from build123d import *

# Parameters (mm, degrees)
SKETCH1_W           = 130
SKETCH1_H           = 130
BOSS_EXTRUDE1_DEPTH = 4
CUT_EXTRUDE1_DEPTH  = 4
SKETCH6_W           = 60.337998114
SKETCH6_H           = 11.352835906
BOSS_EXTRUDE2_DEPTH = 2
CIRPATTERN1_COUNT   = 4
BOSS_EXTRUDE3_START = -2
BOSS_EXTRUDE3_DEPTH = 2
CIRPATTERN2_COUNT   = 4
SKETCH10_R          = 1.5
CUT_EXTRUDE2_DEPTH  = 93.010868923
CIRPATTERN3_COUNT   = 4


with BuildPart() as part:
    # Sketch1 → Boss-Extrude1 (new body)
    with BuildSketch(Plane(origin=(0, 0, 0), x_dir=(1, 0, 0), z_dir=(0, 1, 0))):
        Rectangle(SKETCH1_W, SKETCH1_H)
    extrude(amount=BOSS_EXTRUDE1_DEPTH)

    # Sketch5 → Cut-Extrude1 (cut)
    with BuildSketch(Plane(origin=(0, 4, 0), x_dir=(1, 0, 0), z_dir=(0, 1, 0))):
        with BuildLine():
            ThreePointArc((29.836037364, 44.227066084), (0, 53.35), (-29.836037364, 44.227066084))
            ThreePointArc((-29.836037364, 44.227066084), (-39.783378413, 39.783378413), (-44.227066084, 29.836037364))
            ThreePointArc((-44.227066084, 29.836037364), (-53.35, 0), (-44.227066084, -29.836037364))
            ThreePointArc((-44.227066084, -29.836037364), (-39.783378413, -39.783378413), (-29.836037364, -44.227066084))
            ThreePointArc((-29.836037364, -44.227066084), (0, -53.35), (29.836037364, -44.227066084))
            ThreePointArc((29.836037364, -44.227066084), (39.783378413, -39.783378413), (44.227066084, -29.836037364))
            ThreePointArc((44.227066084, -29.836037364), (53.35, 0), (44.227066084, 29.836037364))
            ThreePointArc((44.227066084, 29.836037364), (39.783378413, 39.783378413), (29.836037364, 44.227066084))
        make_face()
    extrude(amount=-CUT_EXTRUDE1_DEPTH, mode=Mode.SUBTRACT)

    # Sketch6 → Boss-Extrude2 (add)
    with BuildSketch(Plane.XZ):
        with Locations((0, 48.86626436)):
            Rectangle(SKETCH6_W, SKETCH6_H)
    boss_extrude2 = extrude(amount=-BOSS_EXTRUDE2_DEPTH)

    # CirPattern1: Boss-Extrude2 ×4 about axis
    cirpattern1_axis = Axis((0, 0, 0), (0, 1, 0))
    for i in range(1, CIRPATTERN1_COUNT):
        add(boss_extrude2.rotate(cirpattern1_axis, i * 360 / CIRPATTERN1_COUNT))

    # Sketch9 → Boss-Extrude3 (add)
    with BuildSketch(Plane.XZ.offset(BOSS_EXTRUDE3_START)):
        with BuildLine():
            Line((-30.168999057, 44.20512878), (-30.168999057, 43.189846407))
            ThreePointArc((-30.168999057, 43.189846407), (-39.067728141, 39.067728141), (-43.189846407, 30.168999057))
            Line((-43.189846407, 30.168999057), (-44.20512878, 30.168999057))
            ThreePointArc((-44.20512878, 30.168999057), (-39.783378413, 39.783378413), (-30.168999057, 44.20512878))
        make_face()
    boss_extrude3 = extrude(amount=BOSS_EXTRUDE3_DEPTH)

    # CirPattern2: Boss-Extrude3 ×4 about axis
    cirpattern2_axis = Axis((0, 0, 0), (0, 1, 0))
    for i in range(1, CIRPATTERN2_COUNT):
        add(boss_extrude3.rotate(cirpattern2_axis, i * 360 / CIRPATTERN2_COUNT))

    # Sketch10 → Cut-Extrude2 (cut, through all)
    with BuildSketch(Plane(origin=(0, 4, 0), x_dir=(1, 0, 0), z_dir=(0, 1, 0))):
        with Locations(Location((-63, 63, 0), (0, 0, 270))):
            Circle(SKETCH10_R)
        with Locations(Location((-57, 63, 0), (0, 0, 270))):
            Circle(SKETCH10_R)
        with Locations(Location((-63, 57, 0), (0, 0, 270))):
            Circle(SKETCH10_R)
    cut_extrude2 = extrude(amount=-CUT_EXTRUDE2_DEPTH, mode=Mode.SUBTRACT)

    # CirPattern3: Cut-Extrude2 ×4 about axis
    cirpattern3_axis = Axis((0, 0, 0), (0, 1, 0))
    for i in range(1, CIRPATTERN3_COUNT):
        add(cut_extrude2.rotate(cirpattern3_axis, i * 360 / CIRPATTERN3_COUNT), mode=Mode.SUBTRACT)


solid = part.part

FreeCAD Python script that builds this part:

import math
import FreeCAD as App
import Part
import Sketcher
from FreeCAD import Vector
Q = App.Units.Quantity

doc = App.newDocument("Part")
params = doc.addObject("Spreadsheet::Sheet", "Params")
for row, (alias, value) in enumerate([
    ("sketch1_width", "130 mm"),
    ("pad1_length", "4 mm"),
    ("sketch2_radius", "53.35 mm"),
    ("sketch2_radius2", "15.25 mm"),
    ("pocket1_length", "4 mm"),
    ("pad2_length", "2 mm"),
    ("sketch4_radius", "15.25 mm"),
    ("pad3_length", "2 mm"),
    ("sketch5_diameter", "3 mm"),
], start=1):
    params.set(f"A{row}", alias)
    params.set(f"B{row}", "=" + value)
    params.setAlias(f"B{row}", alias)

body = doc.addObject("PartDesign::Body", "Body")

sketch1 = body.newObject("Sketcher::SketchObject", "Sketch")
sketch1.AttachmentSupport = (doc.getObject("XZ_Plane"), [""])
sketch1.MapMode = "FlatFace"
sketch1.addGeometry([
    Part.LineSegment(Vector(-65, -65, 0), Vector(-65, 65, 0)),
    Part.LineSegment(Vector(-65, 65, 0), Vector(65, 65, 0)),
    Part.LineSegment(Vector(65, 65, 0), Vector(65, -65, 0)),
    Part.LineSegment(Vector(65, -65, 0), Vector(-65, -65, 0)),
], False)
sketch1.addConstraint([
    Sketcher.Constraint("Coincident", 0, 2, 1, 1),
    Sketcher.Constraint("Coincident", 1, 2, 2, 1),
    Sketcher.Constraint("Coincident", 2, 2, 3, 1),
    Sketcher.Constraint("Coincident", 3, 2, 0, 1),
    Sketcher.Constraint("Vertical", 0),
    Sketcher.Constraint("Horizontal", 1),
    Sketcher.Constraint("Vertical", 2),
    Sketcher.Constraint("Horizontal", 3),
    Sketcher.Constraint("Symmetric", 0, 2, 2, 2, -1, 1),
    Sketcher.Constraint("Equal", 3, 0),
    Sketcher.Constraint("DistanceX", 1, 1, 1, 2, Q("130 mm")),
])
sketch1.setExpression("Constraints[10]", "Params.sketch1_width")
pad1 = body.newObject("PartDesign::Pad", "Pad")
pad1.Profile = sketch1
pad1.setExpression("Length", "Params.pad1_length")
pad1.Reversed = True

sketch2 = body.newObject("Sketcher::SketchObject", "Sketch001")
sketch2.AttachmentSupport = (doc.getObject("XZ_Plane"), [""])
sketch2.MapMode = "FlatFace"
sketch2.AttachmentOffset = App.Placement(Vector(0, 0, -4), App.Rotation())
sketch2.addGeometry([
    Part.ArcOfCircle(Part.Circle(Vector(0, 0, 0), Vector(0, 0, 1), 53), math.radians(-124), math.radians(-56)),
    Part.ArcOfCircle(Part.Circle(Vector(-29, -29, 0), Vector(0, 0, 1), 15), math.radians(-177), math.radians(-93)),
    Part.ArcOfCircle(Part.Circle(Vector(0, 0, 0), Vector(0, 0, 1), 53), math.radians(146), math.radians(214)),
    Part.ArcOfCircle(Part.Circle(Vector(-29, 29, 0), Vector(0, 0, 1), 15), math.radians(93), math.radians(177)),
    Part.ArcOfCircle(Part.Circle(Vector(0, 0, 0), Vector(0, 0, 1), 53), math.radians(56), math.radians(124)),
    Part.ArcOfCircle(Part.Circle(Vector(29, 29, 0), Vector(0, 0, 1), 15), math.radians(3), math.radians(87)),
    Part.ArcOfCircle(Part.Circle(Vector(0, 0, 0), Vector(0, 0, 1), 53), math.radians(-34), math.radians(34)),
    Part.ArcOfCircle(Part.Circle(Vector(29, -29, 0), Vector(0, 0, 1), 15), math.radians(-87), math.radians(-3)),
], False)
sketch2.addConstraint([
    Sketcher.Constraint("Coincident", 0, 1, 1, 2),
    Sketcher.Constraint("Coincident", 1, 1, 2, 2),
    Sketcher.Constraint("Coincident", 2, 1, 3, 2),
    Sketcher.Constraint("Coincident", 3, 1, 4, 2),
    Sketcher.Constraint("Coincident", 4, 1, 5, 2),
    Sketcher.Constraint("Coincident", 5, 1, 6, 2),
    Sketcher.Constraint("Coincident", 6, 1, 7, 2),
    Sketcher.Constraint("Coincident", 7, 1, 0, 2),
    Sketcher.Constraint("Coincident", 0, 3, -1, 1),
    Sketcher.Constraint("Coincident", 2, 3, -1, 1),
    Sketcher.Constraint("Coincident", 4, 3, -1, 1),
    Sketcher.Constraint("Coincident", 6, 3, -1, 1),
    Sketcher.Constraint("Equal", 0, 2),
    Sketcher.Constraint("Equal", 1, 3),
    Sketcher.Constraint("Equal", 2, 4),
    Sketcher.Constraint("Equal", 3, 5),
    Sketcher.Constraint("Equal", 4, 6),
    Sketcher.Constraint("Equal", 5, 7),
    Sketcher.Constraint("Symmetric", 1, 3, 5, 3, -1, 1),
    Sketcher.Constraint("Symmetric", 3, 3, 7, 3, -1, 1),
    Sketcher.Constraint("Symmetric", 3, 3, 5, 3, -2),
    Sketcher.Constraint("Radius", 0, Q("53.35 mm")),
    Sketcher.Constraint("Radius", 1, Q("15.25 mm")),
    Sketcher.Constraint("DistanceX", 1, 3, -1, 1, Q("29 mm")),
    Sketcher.Constraint("DistanceY", 1, 3, -1, 1, Q("29 mm")),
])
sketch2.setExpression("Constraints[21]", "Params.sketch2_radius")
sketch2.setExpression("Constraints[22]", "Params.sketch2_radius2")
pocket1 = body.newObject("PartDesign::Pocket", "Pocket")
pocket1.Profile = sketch2
pocket1.setExpression("Length", "Params.pocket1_length")
pocket1.Reversed = True

sketch3 = body.newObject("Sketcher::SketchObject", "Sketch002")
sketch3.AttachmentSupport = (doc.getObject("XZ_Plane"), [""])
sketch3.MapMode = "FlatFace"
sketch3.addGeometry([
    Part.LineSegment(Vector(-30, 55, 0), Vector(-30, 43, 0)),
    Part.LineSegment(Vector(-30, 43, 0), Vector(30, 43, 0)),
    Part.LineSegment(Vector(30, 43, 0), Vector(30, 55, 0)),
    Part.LineSegment(Vector(30, 55, 0), Vector(-30, 55, 0)),
], False)
sketch3.addConstraint([
    Sketcher.Constraint("Coincident", 0, 2, 1, 1),
    Sketcher.Constraint("Coincident", 1, 2, 2, 1),
    Sketcher.Constraint("Coincident", 2, 2, 3, 1),
    Sketcher.Constraint("Coincident", 3, 2, 0, 1),
    Sketcher.Constraint("Vertical", 0),
    Sketcher.Constraint("Horizontal", 1),
    Sketcher.Constraint("Vertical", 2),
    Sketcher.Constraint("Horizontal", 3),
    Sketcher.Constraint("DistanceX", 1, 1, 1, 2, Q("60.337998 mm")),
    Sketcher.Constraint("DistanceX", 0, 2, -1, 1, Q("30.168999 mm")),
    Sketcher.Constraint("DistanceY", 0, 2, 0, 1, Q("11.352836 mm")),
    Sketcher.Constraint("DistanceY", -1, 1, 0, 2, Q("43.189846 mm")),
])
pad2 = body.newObject("PartDesign::Pad", "Pad001")
pad2.Profile = sketch3
pad2.setExpression("Length", "Params.pad2_length")
pad2.Reversed = True
doc.recompute()

polarpattern = body.newObject("PartDesign::PolarPattern", "PolarPattern")
polarpattern.Originals = [pad2]
polarpattern.Axis = (doc.getObject("Y_Axis"), [""])
polarpattern.Angle = 360
polarpattern.Occurrences = 4
body.Tip = polarpattern

sketch4 = body.newObject("Sketcher::SketchObject", "Sketch003")
sketch4.AttachmentSupport = (doc.getObject("XZ_Plane"), [""])
sketch4.MapMode = "FlatFace"
sketch4.AttachmentOffset = App.Placement(Vector(0, 0, -2), App.Rotation())
sketch4.addGeometry([
    Part.LineSegment(Vector(-30.2, 43.2, 0), Vector(-30.2, 44.2, 0)),
    Part.ArcOfCircle(Part.Circle(Vector(-29, 29, 0), Vector(0, 0, 1), 15.3), math.radians(94), math.radians(176)),
    Part.LineSegment(Vector(-44.2, 30.2, 0), Vector(-43.2, 30.2, 0)),
    Part.ArcOfCircle(Part.Circle(Vector(-29, 29, 0), Vector(0, 0, 1), 14.2), math.radians(95), math.radians(175)),
], False)
sketch4.addConstraint([
    Sketcher.Constraint("Coincident", 0, 2, 1, 1),
    Sketcher.Constraint("Coincident", 1, 2, 2, 1),
    Sketcher.Constraint("Coincident", 2, 2, 3, 2),
    Sketcher.Constraint("Coincident", 3, 1, 0, 1),
    Sketcher.Constraint("Vertical", 0),
    Sketcher.Constraint("Horizontal", 2),
    Sketcher.Constraint("Coincident", 3, 3, 1, 3),
    Sketcher.Constraint("Equal", 2, 0),
    Sketcher.Constraint("Radius", 1, Q("15.25 mm")),
    Sketcher.Constraint("DistanceX", 1, 3, -1, 1, Q("29 mm")),
    Sketcher.Constraint("DistanceY", -1, 1, 1, 3, Q("29 mm")),
    Sketcher.Constraint("DistanceX", 0, 2, -1, 1, Q("30.168999 mm")),
    Sketcher.Constraint("Radius", 3, Q("14.237918 mm")),
])
sketch4.setExpression("Constraints[8]", "Params.sketch4_radius")
pad3 = body.newObject("PartDesign::Pad", "Pad002")
pad3.Profile = sketch4
pad3.setExpression("Length", "Params.pad3_length")
doc.recompute()

polarpattern2 = body.newObject("PartDesign::PolarPattern", "PolarPattern001")
polarpattern2.Originals = [pad3]
polarpattern2.Axis = (doc.getObject("Y_Axis"), [""])
polarpattern2.Angle = 360
polarpattern2.Occurrences = 4
body.Tip = polarpattern2

sketch5 = body.newObject("Sketcher::SketchObject", "Sketch004")
sketch5.AttachmentSupport = (doc.getObject("XZ_Plane"), [""])
sketch5.MapMode = "FlatFace"
sketch5.AttachmentOffset = App.Placement(Vector(0, 0, -4), App.Rotation())
sketch5.addGeometry([
    Part.Circle(Vector(-63, -63, 0), Vector(0, 0, 1), 1.5),
    Part.Circle(Vector(-57, -63, 0), Vector(0, 0, 1), 1.5),
    Part.Circle(Vector(-63, -57, 0), Vector(0, 0, 1), 1.5),
], False)
sketch5.addConstraint([
    Sketcher.Constraint("Equal", 0, 1),
    Sketcher.Constraint("Equal", 1, 2),
    Sketcher.Constraint("Horizontal", 0, 3, 1, 3),
    Sketcher.Constraint("Vertical", 0, 3, 2, 3),
    Sketcher.Constraint("Diameter", 0, Q("3 mm")),
    Sketcher.Constraint("DistanceX", 0, 3, -1, 1, Q("63 mm")),
    Sketcher.Constraint("DistanceY", 0, 3, -1, 1, Q("63 mm")),
    Sketcher.Constraint("DistanceX", 1, 3, -1, 1, Q("57 mm")),
    Sketcher.Constraint("DistanceY", 2, 3, -1, 1, Q("57 mm")),
])
sketch5.setExpression("Constraints[4]", "Params.sketch5_diameter")
pocket2 = body.newObject("PartDesign::Pocket", "Pocket001")
pocket2.Profile = sketch5
pocket2.Type = "ThroughAll"
pocket2.Reversed = True
doc.recompute()

polarpattern3 = body.newObject("PartDesign::PolarPattern", "PolarPattern002")
polarpattern3.Originals = [pocket2]
polarpattern3.Axis = (doc.getObject("Y_Axis"), [""])
polarpattern3.Angle = 360
polarpattern3.Occurrences = 4
body.Tip = polarpattern3

doc.recompute()
